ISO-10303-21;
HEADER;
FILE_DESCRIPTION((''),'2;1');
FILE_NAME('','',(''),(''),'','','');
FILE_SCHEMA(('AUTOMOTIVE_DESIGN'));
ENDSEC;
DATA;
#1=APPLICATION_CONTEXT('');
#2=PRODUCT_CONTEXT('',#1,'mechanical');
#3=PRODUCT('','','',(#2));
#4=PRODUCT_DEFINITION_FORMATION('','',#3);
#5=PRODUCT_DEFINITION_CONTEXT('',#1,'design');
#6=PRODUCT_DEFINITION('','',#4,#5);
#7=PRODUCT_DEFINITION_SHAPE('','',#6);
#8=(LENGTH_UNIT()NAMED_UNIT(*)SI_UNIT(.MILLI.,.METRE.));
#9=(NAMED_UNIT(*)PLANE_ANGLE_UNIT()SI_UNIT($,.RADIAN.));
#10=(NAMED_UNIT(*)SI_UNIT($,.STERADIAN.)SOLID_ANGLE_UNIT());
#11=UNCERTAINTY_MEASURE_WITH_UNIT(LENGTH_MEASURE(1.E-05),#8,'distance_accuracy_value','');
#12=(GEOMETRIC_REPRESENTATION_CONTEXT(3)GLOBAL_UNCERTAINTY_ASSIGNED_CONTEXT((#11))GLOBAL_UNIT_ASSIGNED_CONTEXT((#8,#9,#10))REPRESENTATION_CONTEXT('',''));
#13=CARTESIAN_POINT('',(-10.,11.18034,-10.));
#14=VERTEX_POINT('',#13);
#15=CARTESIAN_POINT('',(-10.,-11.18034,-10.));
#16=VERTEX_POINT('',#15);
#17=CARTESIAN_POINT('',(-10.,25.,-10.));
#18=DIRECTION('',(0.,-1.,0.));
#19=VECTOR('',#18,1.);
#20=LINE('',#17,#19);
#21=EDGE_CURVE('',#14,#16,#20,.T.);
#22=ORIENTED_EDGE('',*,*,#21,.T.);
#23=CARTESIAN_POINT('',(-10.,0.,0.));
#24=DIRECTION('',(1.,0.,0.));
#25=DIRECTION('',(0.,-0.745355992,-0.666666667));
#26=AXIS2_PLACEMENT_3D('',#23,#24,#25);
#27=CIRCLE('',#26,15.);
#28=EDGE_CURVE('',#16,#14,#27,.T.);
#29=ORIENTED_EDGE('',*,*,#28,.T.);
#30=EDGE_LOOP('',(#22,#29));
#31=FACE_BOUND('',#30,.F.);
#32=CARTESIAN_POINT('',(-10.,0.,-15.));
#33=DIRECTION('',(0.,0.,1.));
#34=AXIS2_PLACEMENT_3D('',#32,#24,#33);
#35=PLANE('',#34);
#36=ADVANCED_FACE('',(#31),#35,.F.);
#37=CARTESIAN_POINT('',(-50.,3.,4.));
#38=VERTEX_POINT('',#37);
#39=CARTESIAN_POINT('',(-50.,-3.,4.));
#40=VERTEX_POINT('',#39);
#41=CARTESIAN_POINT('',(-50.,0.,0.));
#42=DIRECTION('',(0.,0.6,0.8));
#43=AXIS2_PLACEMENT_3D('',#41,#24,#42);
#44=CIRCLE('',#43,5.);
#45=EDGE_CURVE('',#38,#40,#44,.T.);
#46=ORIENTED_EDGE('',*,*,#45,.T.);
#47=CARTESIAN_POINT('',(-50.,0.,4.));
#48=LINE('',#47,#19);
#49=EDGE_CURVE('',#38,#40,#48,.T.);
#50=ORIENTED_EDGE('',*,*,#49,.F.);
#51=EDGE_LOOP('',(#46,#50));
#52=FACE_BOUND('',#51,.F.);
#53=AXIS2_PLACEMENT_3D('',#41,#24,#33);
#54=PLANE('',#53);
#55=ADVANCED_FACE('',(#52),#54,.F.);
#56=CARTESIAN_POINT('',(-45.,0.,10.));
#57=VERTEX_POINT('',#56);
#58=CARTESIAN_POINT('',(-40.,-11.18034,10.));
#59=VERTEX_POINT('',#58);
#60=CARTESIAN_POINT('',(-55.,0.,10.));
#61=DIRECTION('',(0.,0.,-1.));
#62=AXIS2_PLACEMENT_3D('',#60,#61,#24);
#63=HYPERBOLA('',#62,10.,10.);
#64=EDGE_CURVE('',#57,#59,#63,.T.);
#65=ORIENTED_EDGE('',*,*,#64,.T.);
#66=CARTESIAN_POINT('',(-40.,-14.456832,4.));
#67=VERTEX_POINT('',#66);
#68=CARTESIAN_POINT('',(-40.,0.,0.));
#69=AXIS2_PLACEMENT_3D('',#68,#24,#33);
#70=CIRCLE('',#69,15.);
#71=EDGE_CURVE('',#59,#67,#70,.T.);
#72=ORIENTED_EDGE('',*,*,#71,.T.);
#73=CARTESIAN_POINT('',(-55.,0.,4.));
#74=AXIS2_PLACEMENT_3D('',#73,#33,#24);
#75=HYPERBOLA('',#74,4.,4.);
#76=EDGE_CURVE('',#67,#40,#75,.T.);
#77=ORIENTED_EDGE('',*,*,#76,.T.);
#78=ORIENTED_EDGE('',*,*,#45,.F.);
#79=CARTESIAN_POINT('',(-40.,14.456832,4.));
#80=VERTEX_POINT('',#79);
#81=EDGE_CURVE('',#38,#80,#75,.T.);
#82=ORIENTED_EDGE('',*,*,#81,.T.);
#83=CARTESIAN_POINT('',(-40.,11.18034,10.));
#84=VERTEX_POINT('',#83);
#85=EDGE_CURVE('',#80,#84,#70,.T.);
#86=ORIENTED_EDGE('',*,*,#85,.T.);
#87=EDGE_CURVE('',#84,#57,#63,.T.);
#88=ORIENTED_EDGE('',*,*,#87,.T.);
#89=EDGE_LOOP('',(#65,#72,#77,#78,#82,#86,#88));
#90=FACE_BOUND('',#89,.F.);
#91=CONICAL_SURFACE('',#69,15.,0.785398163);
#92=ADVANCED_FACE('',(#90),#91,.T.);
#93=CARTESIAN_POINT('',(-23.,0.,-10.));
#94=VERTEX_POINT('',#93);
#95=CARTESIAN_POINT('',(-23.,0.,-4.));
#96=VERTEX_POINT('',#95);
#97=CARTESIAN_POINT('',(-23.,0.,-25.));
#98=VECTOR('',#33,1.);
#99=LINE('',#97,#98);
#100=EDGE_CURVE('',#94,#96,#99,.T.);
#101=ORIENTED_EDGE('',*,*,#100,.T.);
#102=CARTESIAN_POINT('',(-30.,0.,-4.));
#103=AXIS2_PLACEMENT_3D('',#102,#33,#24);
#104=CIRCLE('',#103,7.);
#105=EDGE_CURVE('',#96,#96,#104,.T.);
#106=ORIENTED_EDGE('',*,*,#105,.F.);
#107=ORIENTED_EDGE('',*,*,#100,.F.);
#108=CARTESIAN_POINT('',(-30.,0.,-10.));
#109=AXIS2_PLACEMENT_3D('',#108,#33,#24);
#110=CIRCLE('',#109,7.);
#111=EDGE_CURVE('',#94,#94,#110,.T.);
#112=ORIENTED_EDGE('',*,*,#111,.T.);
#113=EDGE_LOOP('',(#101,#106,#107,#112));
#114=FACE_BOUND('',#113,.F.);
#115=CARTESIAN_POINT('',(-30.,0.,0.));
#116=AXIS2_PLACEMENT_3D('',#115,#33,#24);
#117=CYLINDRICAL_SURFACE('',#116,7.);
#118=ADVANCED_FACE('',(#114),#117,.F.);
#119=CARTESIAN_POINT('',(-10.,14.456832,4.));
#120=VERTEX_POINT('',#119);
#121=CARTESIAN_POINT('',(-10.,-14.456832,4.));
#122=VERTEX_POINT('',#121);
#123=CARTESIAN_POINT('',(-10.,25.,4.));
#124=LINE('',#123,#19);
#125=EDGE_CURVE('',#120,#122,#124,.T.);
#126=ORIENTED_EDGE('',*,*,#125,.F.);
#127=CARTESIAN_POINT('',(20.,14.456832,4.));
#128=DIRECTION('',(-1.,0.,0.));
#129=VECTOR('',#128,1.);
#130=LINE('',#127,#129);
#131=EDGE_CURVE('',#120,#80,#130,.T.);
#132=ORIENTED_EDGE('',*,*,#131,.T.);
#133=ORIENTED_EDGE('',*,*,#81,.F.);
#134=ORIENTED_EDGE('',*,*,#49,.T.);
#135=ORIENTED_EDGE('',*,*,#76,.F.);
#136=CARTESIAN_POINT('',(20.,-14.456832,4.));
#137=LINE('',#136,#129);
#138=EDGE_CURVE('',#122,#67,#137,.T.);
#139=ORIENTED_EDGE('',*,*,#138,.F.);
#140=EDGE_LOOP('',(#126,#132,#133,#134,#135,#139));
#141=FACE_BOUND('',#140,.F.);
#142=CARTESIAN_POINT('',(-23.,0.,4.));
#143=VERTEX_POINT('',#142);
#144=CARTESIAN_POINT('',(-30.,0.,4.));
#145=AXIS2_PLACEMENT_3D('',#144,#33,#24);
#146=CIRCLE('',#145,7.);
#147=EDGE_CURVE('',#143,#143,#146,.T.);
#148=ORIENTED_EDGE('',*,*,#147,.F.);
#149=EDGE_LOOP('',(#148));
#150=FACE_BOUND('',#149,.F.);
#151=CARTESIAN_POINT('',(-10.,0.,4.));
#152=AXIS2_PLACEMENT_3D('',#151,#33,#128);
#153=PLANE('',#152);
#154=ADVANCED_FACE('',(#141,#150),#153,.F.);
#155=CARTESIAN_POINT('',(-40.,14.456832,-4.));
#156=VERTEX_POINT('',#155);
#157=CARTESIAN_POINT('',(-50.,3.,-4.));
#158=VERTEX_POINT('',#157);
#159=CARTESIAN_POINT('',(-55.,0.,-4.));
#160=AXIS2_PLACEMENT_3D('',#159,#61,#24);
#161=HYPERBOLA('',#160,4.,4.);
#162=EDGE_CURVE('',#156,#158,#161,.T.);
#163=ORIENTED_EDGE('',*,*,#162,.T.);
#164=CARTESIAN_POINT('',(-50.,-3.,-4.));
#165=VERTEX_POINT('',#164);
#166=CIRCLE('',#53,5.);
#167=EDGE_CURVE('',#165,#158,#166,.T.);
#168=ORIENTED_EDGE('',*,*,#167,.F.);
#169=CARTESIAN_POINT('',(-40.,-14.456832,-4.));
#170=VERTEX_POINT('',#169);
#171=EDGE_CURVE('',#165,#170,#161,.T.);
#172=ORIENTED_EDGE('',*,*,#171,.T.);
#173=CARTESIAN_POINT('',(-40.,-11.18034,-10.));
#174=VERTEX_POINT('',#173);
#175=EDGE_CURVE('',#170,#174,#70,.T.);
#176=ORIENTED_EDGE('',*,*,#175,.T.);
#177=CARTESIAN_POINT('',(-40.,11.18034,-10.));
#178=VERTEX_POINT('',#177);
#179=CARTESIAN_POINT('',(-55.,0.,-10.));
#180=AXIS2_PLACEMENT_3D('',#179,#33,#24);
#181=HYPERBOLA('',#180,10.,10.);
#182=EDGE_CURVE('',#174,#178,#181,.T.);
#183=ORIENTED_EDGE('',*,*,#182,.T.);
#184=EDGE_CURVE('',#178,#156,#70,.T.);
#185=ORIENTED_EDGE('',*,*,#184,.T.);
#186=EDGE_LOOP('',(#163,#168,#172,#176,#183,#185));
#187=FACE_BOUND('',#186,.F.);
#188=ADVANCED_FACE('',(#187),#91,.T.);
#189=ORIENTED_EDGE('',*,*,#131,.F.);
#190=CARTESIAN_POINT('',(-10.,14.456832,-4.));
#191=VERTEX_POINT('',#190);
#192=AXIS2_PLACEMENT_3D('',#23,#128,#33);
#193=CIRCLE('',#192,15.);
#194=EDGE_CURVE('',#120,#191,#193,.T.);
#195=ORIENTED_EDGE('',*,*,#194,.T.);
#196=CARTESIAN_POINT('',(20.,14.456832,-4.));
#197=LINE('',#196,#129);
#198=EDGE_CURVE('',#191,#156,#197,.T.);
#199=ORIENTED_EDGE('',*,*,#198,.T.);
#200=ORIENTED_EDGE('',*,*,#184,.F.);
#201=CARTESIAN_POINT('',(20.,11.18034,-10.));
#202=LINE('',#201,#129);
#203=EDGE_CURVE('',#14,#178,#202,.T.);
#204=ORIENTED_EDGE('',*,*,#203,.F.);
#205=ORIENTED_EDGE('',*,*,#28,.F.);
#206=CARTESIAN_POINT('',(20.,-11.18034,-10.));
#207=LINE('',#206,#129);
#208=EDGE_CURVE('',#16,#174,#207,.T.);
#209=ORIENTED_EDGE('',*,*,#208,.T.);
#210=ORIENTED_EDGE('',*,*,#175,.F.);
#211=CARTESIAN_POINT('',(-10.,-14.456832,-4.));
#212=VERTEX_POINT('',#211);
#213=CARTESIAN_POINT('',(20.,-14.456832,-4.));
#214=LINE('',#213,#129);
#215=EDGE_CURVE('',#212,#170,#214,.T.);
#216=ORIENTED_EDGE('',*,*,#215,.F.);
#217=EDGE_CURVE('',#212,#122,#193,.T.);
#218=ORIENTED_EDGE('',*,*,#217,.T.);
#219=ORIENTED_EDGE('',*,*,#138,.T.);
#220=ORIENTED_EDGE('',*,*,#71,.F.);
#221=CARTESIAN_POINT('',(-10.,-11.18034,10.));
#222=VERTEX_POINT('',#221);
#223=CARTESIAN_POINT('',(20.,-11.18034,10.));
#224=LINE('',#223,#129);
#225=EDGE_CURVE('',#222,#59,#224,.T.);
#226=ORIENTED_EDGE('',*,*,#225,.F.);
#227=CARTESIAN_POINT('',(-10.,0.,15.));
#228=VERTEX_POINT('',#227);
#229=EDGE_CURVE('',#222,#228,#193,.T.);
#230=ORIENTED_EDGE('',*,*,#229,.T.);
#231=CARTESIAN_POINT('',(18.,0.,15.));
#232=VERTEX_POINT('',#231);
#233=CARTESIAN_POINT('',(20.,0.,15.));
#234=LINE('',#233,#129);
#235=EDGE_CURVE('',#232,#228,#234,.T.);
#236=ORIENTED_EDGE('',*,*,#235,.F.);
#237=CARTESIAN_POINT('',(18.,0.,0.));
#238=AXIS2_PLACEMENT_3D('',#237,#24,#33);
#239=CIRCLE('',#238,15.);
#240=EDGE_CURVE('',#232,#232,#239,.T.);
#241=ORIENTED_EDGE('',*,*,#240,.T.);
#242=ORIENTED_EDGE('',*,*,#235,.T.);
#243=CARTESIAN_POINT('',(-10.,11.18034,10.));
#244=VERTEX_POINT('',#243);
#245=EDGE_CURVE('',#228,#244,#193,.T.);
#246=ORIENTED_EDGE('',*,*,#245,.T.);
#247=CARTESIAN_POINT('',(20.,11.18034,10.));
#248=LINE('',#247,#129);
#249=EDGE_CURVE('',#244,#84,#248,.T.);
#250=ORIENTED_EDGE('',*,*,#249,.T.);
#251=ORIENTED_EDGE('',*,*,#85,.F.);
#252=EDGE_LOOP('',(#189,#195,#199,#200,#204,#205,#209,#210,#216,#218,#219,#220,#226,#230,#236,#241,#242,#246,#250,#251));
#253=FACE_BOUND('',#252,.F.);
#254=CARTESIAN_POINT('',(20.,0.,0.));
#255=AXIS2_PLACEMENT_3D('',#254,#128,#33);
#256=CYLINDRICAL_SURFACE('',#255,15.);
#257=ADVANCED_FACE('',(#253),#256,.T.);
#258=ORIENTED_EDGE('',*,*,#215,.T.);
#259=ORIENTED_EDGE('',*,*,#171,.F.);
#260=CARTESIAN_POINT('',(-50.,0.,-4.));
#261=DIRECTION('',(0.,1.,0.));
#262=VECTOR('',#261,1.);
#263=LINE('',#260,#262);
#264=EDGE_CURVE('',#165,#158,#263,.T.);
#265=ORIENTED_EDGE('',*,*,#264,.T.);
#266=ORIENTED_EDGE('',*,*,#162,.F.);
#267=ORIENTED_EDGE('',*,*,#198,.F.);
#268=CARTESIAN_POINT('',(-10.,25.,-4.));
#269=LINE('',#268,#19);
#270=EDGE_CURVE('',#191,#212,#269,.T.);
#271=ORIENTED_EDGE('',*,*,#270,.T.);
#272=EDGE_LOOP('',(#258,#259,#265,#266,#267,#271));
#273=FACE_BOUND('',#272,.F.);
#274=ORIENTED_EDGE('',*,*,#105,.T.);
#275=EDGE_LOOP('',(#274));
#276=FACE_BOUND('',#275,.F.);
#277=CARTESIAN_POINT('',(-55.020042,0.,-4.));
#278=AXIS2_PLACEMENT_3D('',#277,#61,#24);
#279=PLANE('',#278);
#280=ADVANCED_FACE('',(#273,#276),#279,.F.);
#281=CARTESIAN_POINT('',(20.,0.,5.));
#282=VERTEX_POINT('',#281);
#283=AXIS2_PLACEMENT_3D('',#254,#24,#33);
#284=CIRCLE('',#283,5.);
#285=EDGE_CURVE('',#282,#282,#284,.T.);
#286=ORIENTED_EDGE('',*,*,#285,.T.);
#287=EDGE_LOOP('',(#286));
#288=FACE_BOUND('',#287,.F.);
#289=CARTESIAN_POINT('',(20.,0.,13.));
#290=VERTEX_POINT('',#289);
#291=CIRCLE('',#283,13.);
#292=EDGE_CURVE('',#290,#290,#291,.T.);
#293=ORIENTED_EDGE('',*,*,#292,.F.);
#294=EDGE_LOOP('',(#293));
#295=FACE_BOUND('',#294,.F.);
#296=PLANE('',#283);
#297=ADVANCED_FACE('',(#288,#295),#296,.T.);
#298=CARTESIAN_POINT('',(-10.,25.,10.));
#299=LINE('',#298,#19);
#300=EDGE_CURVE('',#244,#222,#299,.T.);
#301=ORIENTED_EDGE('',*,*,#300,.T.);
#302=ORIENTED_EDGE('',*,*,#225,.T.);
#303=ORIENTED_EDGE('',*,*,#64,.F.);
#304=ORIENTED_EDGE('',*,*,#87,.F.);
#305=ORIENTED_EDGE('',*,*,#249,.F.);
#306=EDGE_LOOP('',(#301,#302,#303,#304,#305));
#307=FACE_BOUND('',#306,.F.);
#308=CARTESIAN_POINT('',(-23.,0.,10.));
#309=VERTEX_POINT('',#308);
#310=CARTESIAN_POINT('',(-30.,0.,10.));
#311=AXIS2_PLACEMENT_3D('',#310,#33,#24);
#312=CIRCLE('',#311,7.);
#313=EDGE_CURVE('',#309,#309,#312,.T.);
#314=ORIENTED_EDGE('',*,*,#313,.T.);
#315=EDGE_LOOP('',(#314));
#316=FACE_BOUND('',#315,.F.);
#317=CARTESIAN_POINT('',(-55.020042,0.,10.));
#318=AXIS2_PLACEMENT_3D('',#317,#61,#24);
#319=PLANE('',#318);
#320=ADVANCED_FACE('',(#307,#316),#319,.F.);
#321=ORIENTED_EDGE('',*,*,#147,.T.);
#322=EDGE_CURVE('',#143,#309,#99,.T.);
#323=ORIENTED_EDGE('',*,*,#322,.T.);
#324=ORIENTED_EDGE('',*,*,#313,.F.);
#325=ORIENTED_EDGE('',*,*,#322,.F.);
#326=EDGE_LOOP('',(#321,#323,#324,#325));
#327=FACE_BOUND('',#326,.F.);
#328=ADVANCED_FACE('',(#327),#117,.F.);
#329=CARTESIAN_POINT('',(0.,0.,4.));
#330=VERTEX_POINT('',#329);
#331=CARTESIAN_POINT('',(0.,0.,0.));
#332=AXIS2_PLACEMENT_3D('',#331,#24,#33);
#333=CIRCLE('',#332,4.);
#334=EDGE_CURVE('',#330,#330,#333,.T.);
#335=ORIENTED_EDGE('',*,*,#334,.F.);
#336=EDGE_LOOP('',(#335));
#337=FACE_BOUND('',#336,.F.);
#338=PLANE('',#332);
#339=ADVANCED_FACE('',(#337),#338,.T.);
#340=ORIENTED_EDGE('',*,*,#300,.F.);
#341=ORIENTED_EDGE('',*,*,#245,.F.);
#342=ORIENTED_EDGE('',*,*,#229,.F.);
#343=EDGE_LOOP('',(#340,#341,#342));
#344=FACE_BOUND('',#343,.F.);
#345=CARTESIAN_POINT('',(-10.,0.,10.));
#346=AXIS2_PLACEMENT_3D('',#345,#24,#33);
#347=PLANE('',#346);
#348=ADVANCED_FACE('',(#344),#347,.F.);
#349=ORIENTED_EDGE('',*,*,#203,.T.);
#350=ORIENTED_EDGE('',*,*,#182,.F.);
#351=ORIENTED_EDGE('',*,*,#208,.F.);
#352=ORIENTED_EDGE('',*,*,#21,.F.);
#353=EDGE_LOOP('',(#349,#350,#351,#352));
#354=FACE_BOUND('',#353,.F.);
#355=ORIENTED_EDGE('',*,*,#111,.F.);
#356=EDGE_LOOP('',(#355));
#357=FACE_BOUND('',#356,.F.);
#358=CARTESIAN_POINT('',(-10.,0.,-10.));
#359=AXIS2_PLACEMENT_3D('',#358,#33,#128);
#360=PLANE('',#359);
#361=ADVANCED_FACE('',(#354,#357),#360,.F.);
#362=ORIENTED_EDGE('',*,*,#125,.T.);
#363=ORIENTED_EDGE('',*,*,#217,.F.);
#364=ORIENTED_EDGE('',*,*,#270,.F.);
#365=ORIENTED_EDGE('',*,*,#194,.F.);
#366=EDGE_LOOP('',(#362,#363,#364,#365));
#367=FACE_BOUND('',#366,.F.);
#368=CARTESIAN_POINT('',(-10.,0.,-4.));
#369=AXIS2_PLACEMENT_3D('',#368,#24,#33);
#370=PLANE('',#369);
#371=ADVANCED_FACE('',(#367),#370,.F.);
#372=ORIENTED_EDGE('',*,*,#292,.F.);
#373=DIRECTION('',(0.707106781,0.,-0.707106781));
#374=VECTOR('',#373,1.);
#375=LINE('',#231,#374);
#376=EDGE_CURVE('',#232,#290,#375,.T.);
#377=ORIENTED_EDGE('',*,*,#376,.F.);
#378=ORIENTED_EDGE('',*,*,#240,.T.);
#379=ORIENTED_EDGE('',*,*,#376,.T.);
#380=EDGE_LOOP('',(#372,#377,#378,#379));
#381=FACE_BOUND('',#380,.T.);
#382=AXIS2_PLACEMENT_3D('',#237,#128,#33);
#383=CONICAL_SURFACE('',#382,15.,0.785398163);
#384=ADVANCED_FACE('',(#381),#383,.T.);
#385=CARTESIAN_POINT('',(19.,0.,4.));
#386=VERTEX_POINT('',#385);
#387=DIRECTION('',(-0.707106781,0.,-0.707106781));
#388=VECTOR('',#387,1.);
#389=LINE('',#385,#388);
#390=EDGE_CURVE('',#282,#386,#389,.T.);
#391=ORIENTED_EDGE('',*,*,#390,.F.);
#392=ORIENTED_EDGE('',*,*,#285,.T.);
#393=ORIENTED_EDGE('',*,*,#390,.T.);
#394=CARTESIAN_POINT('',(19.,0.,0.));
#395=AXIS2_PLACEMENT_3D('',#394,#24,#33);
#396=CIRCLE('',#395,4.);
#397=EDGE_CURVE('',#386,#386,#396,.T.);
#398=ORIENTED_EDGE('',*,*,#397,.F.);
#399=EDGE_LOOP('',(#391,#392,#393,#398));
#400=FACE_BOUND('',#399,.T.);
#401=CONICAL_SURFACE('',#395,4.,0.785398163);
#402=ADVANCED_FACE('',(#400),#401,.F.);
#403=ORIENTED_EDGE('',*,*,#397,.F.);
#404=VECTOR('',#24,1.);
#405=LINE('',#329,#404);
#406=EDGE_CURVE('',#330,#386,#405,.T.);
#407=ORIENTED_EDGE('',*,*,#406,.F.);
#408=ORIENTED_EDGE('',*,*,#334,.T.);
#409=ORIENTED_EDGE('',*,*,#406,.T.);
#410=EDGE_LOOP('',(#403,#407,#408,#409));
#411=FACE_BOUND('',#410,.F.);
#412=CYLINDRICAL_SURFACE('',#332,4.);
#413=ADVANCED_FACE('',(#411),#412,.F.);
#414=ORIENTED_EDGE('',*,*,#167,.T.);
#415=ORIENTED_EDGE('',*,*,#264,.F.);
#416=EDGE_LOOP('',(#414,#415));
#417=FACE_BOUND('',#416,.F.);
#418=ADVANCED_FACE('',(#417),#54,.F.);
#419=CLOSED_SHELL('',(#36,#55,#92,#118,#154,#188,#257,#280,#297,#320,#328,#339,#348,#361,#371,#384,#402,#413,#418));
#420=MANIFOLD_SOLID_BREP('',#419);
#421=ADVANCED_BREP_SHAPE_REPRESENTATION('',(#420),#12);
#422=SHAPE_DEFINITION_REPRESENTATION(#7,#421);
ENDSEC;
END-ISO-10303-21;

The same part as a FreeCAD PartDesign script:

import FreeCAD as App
import Part
import Sketcher
from FreeCAD import Vector
Q = App.Units.Quantity


def edges_at(feature, points):
    """Names of the edges that pass closest to the given points."""
    edges = feature.Shape.Edges
    near = lambda p: min(range(len(edges)), key=lambda i: edges[i].distToShape(Part.Vertex(*p))[0])
    return sorted({f"Edge{near(p) + 1}" for p in points})

doc = App.newDocument("Part")
body = doc.addObject("PartDesign::Body", "Body")

sketch1 = body.newObject("Sketcher::SketchObject", "Sketch")
sketch1.AttachmentSupport = (doc.getObject("XZ_Plane"), [""])
sketch1.MapMode = "FlatFace"
sketch1.addGeometry([
    Part.LineSegment(Vector(-50, 0, 0), Vector(0, 0, 0)),
    Part.LineSegment(Vector(0, 0, 0), Vector(0, 4, 0)),
    Part.LineSegment(Vector(0, 4, 0), Vector(20, 4, 0)),
    Part.LineSegment(Vector(20, 4, 0), Vector(20, 15, 0)),
    Part.LineSegment(Vector(20, 15, 0), Vector(-50, 15, 0)),
    Part.LineSegment(Vector(-50, 15, 0), Vector(-50, 0, 0)),
], False)
sketch1.addConstraint([
    Sketcher.Constraint("Coincident", 0, 2, 1, 1),
    Sketcher.Constraint("Coincident", 1, 2, 2, 1),
    Sketcher.Constraint("Coincident", 2, 2, 3, 1),
    Sketcher.Constraint("Coincident", 3, 2, 4, 1),
    Sketcher.Constraint("Coincident", 4, 2, 5, 1),
    Sketcher.Constraint("Coincident", 5, 2, 0, 1),
    Sketcher.Constraint("Horizontal", 0),
    Sketcher.Constraint("Vertical", 1),
    Sketcher.Constraint("Horizontal", 2),
    Sketcher.Constraint("Vertical", 3),
    Sketcher.Constraint("Horizontal", 4),
    Sketcher.Constraint("Vertical", 5),
    Sketcher.Constraint("Coincident", 0, 2, -1, 1),
    Sketcher.Constraint("DistanceX", 0, 1, 0, 2, Q("50 mm")),
    Sketcher.Constraint("DistanceX", 2, 1, 2, 2, Q("20 mm")),
    Sketcher.Constraint("DistanceY", 1, 1, 1, 2, Q("4 mm")),
    Sketcher.Constraint("DistanceY", 3, 1, 3, 2, Q("11 mm")),
])
revolution = body.newObject("PartDesign::Revolution", "Revolution")
revolution.Profile = sketch1
revolution.ReferenceAxis = (sketch1, ["H_Axis"])
revolution.Angle = 360
doc.recompute()

chamfer = body.newObject("PartDesign::Chamfer", "Chamfer")
chamfer.Base = (revolution, edges_at(revolution, [(-50, 0, -15)]))
chamfer.Size = 10

sketch2 = body.newObject("Sketcher::SketchObject", "Sketch001")
sketch2.AttachmentSupport = (doc.getObject("XZ_Plane"), [""])
sketch2.MapMode = "FlatFace"
sketch2.addGeometry([
    Part.LineSegment(Vector(-61, -15, 0), Vector(-10, -15, 0)),
    Part.LineSegment(Vector(-10, -15, 0), Vector(-10, -10, 0)),
    Part.LineSegment(Vector(-10, -10, 0), Vector(-55, -10, 0)),
    Part.LineSegment(Vector(-55, -10, 0), Vector(-55, -4, 0)),
    Part.LineSegment(Vector(-55, -4, 0), Vector(-10, -4, 0)),
    Part.LineSegment(Vector(-10, -4, 0), Vector(-10, 4, 0)),
    Part.LineSegment(Vector(-10, 4, 0), Vector(-55, 4, 0)),
    Part.LineSegment(Vector(-55, 4, 0), Vector(-55, 10, 0)),
    Part.LineSegment(Vector(-55, 10, 0), Vector(-10, 10, 0)),
    Part.LineSegment(Vector(-10, 10, 0), Vector(-10, 15, 0)),
    Part.LineSegment(Vector(-10, 15, 0), Vector(-61, 15, 0)),
    Part.LineSegment(Vector(-61, 15, 0), Vector(-61, -15, 0)),
], False)
sketch2.addConstraint([
    Sketcher.Constraint("Coincident", 0, 2, 1, 1),
    Sketcher.Constraint("Coincident", 1, 2, 2, 1),
    Sketcher.Constraint("Coincident", 2, 2, 3, 1),
    Sketcher.Constraint("Coincident", 3, 2, 4, 1),
    Sketcher.Constraint("Coincident", 4, 2, 5, 1),
    Sketcher.Constraint("Coincident", 5, 2, 6, 1),
    Sketcher.Constraint("Coincident", 6, 2, 7, 1),
    Sketcher.Constraint("Coincident", 7, 2, 8, 1),
    Sketcher.Constraint("Coincident", 8, 2, 9, 1),
    Sketcher.Constraint("Coincident", 9, 2, 10, 1),
    Sketcher.Constraint("Coincident", 10, 2, 11, 1),
    Sketcher.Constraint("Coincident", 11, 2, 0, 1),
    Sketcher.Constraint("Horizontal", 0),
    Sketcher.Constraint("Vertical", 1),
    Sketcher.Constraint("Horizontal", 2),
    Sketcher.Constraint("Vertical", 3),
    Sketcher.Constraint("Horizontal", 4),
    Sketcher.Constraint("Vertical", 5),
    Sketcher.Constraint("Horizontal", 6),
    Sketcher.Constraint("Vertical", 7),
    Sketcher.Constraint("Horizontal", 8),
    Sketcher.Constraint("Vertical", 9),
    Sketcher.Constraint("Horizontal", 10),
    Sketcher.Constraint("Vertical", 11),
    Sketcher.Constraint("Symmetric", 3, 2, 6, 2, -1),
    Sketcher.Constraint("Symmetric", 1, 2, 8, 2, -1),
    Sketcher.Constraint("Vertical", 1, 2, 4, 2),
    Sketcher.Constraint("Equal", 1, 9),
    Sketcher.Constraint("DistanceY", 1, 1, 1, 2, Q("5 mm")),
    Sketcher.Constraint("DistanceY", 3, 1, 3, 2, Q("6 mm")),
    Sketcher.Constraint("DistanceY", 5, 1, 5, 2, Q("8 mm")),
    Sketcher.Constraint("DistanceX", 0, 2, -1, 1, Q("10 mm")),
    Sketcher.Constraint("DistanceX", 2, 2, 2, 1, Q("45.020042 mm")),
    Sketcher.Constraint("DistanceX", 0, 1, 0, 2, Q("50.617507 mm")),
])
pocket1 = body.newObject("PartDesign::Pocket", "Pocket")
pocket1.Profile = sketch2
pocket1.Length = 50
pocket1.Midplane = True

sketch3 = body.newObject("Sketcher::SketchObject", "Sketch002")
sketch3.AttachmentSupport = (doc.getObject("XY_Plane"), [""])
sketch3.MapMode = "FlatFace"
sketch3.addGeometry(Part.Circle(Vector(-30, 0, 0), Vector(0, 0, 1), 7), False)
sketch3.addConstraint([
    Sketcher.Constraint("PointOnObject", 0, 3, -1),
    Sketcher.Constraint("Diameter", 0, Q("14 mm")),
    Sketcher.Constraint("DistanceX", 0, 3, -1, 1, Q("30 mm")),
])
pocket2 = body.newObject("PartDesign::Pocket", "Pocket001")
pocket2.Profile = sketch3
pocket2.Length = 50
pocket2.Midplane = True
doc.recompute()

chamfer2 = body.newObject("PartDesign::Chamfer", "Chamfer001")
chamfer2.Base = (pocket2, edges_at(pocket2, [(20, 0, -15)]))
chamfer2.Size = 2
doc.recompute()

chamfer3 = body.newObject("PartDesign::Chamfer", "Chamfer002")
chamfer3.Base = (chamfer2, edges_at(chamfer2, [(20, 0, -4)]))
chamfer3.Size = 1

doc.recompute()
